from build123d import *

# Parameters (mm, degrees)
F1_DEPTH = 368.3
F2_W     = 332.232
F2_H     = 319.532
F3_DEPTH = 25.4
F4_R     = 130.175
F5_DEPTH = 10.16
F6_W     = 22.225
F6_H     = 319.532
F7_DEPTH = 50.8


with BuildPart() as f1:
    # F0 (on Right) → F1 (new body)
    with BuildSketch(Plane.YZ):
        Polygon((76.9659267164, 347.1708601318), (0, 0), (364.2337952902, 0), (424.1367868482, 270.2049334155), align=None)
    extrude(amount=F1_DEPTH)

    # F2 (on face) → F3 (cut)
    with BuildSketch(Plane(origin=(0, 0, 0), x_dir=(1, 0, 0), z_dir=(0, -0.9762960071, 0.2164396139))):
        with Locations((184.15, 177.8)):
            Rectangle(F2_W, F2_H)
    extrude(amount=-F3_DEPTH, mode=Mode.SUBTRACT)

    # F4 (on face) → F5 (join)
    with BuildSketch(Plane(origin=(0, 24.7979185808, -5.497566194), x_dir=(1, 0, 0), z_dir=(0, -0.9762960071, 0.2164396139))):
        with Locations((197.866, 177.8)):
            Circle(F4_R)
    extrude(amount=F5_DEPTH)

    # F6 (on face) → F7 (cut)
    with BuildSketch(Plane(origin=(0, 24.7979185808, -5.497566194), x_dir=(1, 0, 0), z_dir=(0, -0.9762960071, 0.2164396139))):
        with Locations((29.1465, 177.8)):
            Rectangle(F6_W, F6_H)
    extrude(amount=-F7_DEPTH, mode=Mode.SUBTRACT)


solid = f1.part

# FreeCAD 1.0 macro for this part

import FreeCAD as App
import Part
import Sketcher
Q = App.Units.Quantity

doc = App.newDocument("Part")
body = doc.addObject("PartDesign::Body", "Body")

sketch1 = body.newObject("Sketcher::SketchObject", "Sketch")
sketch1.AttachmentSupport = (doc.getObject("YZ_Plane"), [""])
sketch1.MapMode = "FlatFace"
sketch1.addGeometry([
    Part.LineSegment(App.Vector(76.965927, 347.17086, 0), App.Vector(0, 0, 0)),
    Part.LineSegment(App.Vector(0, 0, 0), App.Vector(364.233795, 0, 0)),
    Part.LineSegment(App.Vector(364.233795, 0, 0), App.Vector(424.136787, 270.204933, 0)),
    Part.LineSegment(App.Vector(424.136787, 270.204933, 0), App.Vector(76.965927, 347.17086, 0)),
], False)
sketch1.addConstraint([
    Sketcher.Constraint("Coincident", 0, 2, 1, 1),
    Sketcher.Constraint("Coincident", 1, 2, 2, 1),
    Sketcher.Constraint("Coincident", 2, 2, 3, 1),
    Sketcher.Constraint("Coincident", 3, 2, 0, 1),
    Sketcher.Constraint("Horizontal", 1),
    Sketcher.Constraint("Coincident", 0, 2, -1, 1),
    Sketcher.Constraint("Parallel", 0, 2),
    Sketcher.Constraint("Perpendicular", 2, 3),
    Sketcher.Constraint("Equal", 0, 3),
    Sketcher.Constraint("Distance", 0, Q("14 in")),
    Sketcher.Constraint("Angle", 0, Q("-102.5 deg")),
])
pad1 = body.newObject("PartDesign::Pad", "Pad")
pad1.Profile = sketch1
pad1.Length = Q("14.5 in")

sketch2 = body.newObject("Sketcher::SketchObject", "Sketch001")
sketch2.Placement = App.Placement(App.Vector(0, 0, 0), App.Rotation(App.Vector(1, 0, 0), App.Vector(0, 0.216439614, 0.976296007), App.Vector(0, -0.976296007, 0.216439614), "ZXY"))
sketch2.addGeometry([
    Part.LineSegment(App.Vector(18.034, 337.566, 0), App.Vector(18.034, 18.034, 0)),
    Part.LineSegment(App.Vector(18.034, 18.034, 0), App.Vector(350.266, 18.034, 0)),
    Part.LineSegment(App.Vector(350.266, 18.034, 0), App.Vector(350.266, 337.566, 0)),
    Part.LineSegment(App.Vector(350.266, 337.566, 0), App.Vector(18.034, 337.566, 0)),
], False)
sketch2.addConstraint([
    Sketcher.Constraint("Coincident", 0, 2, 1, 1),
    Sketcher.Constraint("Coincident", 1, 2, 2, 1),
    Sketcher.Constraint("Coincident", 2, 2, 3, 1),
    Sketcher.Constraint("Coincident", 3, 2, 0, 1),
    Sketcher.Constraint("Vertical", 0),
    Sketcher.Constraint("Horizontal", 1),
    Sketcher.Constraint("Vertical", 2),
    Sketcher.Constraint("Horizontal", 3),
    Sketcher.Constraint("DistanceX", 1, 1, 1, 2, Q("13.08 in")),
    Sketcher.Constraint("DistanceY", 0, 2, 0, 1, Q("12.58 in")),
    Sketcher.Constraint("DistanceX", -1, 1, 0, 2, Q("0.71 in")),
    Sketcher.Constraint("DistanceY", -1, 1, 0, 2, Q("0.71 in")),
])
pocket1 = body.newObject("PartDesign::Pocket", "Pocket")
pocket1.Profile = sketch2
pocket1.Length = Q("1 in")

sketch3 = body.newObject("Sketcher::SketchObject", "Sketch002")
sketch3.Placement = App.Placement(App.Vector(0, 24.797919, -5.497566), App.Rotation(App.Vector(1, 0, 0), App.Vector(0, 0.216439614, 0.976296007), App.Vector(0, -0.976296007, 0.216439614), "ZXY"))
sketch3.addGeometry(Part.Circle(App.Vector(197.866, 177.8, 0), App.Vector(0, 0, 1), 130.175), False)
sketch3.addConstraint([
    Sketcher.Constraint("Diameter", 0, Q("10.25 in")),
    Sketcher.Constraint("DistanceY", -1, 1, 0, 3, Q("7 in")),
    Sketcher.Constraint("DistanceX", -1, 1, 0, 3, Q("7.79 in")),
])
pad2 = body.newObject("PartDesign::Pad", "Pad001")
pad2.Profile = sketch3
pad2.Length = Q("0.4 in")

sketch4 = body.newObject("Sketcher::SketchObject", "Sketch003")
sketch4.Placement = App.Placement(App.Vector(0, 24.797919, -5.497566), App.Rotation(App.Vector(1, 0, 0), App.Vector(0, 0.216439614, 0.976296007), App.Vector(0, -0.976296007, 0.216439614), "ZXY"))
sketch4.addGeometry([
    Part.LineSegment(App.Vector(18.034, 337.566, 0), App.Vector(18.034, 18.034, 0)),
    Part.LineSegment(App.Vector(18.034, 18.034, 0), App.Vector(40.259, 18.034, 0)),
    Part.LineSegment(App.Vector(40.259, 18.034, 0), App.Vector(40.259, 337.566, 0)),
    Part.LineSegment(App.Vector(40.259, 337.566, 0), App.Vector(18.034, 337.566, 0)),
], False)
sketch4.addConstraint([
    Sketcher.Constraint("Coincident", 0, 2, 1, 1),
    Sketcher.Constraint("Coincident", 1, 2, 2, 1),
    Sketcher.Constraint("Coincident", 2, 2, 3, 1),
    Sketcher.Constraint("Coincident", 3, 2, 0, 1),
    Sketcher.Constraint("Vertical", 0),
    Sketcher.Constraint("Horizontal", 1),
    Sketcher.Constraint("Vertical", 2),
    Sketcher.Constraint("Horizontal", 3),
    Sketcher.Constraint("DistanceY", 0, 2, 0, 1, Q("12.58 in")),
    Sketcher.Constraint("DistanceX", 1, 1, 1, 2, Q("0.875 in")),
    Sketcher.Constraint("DistanceX", -1, 1, 0, 2, Q("0.71 in")),
    Sketcher.Constraint("DistanceY", -1, 1, 0, 2, Q("0.71 in")),
])
pocket2 = body.newObject("PartDesign::Pocket", "Pocket001")
pocket2.Profile = sketch4
pocket2.Length = Q("2 in")

doc.recompute()
